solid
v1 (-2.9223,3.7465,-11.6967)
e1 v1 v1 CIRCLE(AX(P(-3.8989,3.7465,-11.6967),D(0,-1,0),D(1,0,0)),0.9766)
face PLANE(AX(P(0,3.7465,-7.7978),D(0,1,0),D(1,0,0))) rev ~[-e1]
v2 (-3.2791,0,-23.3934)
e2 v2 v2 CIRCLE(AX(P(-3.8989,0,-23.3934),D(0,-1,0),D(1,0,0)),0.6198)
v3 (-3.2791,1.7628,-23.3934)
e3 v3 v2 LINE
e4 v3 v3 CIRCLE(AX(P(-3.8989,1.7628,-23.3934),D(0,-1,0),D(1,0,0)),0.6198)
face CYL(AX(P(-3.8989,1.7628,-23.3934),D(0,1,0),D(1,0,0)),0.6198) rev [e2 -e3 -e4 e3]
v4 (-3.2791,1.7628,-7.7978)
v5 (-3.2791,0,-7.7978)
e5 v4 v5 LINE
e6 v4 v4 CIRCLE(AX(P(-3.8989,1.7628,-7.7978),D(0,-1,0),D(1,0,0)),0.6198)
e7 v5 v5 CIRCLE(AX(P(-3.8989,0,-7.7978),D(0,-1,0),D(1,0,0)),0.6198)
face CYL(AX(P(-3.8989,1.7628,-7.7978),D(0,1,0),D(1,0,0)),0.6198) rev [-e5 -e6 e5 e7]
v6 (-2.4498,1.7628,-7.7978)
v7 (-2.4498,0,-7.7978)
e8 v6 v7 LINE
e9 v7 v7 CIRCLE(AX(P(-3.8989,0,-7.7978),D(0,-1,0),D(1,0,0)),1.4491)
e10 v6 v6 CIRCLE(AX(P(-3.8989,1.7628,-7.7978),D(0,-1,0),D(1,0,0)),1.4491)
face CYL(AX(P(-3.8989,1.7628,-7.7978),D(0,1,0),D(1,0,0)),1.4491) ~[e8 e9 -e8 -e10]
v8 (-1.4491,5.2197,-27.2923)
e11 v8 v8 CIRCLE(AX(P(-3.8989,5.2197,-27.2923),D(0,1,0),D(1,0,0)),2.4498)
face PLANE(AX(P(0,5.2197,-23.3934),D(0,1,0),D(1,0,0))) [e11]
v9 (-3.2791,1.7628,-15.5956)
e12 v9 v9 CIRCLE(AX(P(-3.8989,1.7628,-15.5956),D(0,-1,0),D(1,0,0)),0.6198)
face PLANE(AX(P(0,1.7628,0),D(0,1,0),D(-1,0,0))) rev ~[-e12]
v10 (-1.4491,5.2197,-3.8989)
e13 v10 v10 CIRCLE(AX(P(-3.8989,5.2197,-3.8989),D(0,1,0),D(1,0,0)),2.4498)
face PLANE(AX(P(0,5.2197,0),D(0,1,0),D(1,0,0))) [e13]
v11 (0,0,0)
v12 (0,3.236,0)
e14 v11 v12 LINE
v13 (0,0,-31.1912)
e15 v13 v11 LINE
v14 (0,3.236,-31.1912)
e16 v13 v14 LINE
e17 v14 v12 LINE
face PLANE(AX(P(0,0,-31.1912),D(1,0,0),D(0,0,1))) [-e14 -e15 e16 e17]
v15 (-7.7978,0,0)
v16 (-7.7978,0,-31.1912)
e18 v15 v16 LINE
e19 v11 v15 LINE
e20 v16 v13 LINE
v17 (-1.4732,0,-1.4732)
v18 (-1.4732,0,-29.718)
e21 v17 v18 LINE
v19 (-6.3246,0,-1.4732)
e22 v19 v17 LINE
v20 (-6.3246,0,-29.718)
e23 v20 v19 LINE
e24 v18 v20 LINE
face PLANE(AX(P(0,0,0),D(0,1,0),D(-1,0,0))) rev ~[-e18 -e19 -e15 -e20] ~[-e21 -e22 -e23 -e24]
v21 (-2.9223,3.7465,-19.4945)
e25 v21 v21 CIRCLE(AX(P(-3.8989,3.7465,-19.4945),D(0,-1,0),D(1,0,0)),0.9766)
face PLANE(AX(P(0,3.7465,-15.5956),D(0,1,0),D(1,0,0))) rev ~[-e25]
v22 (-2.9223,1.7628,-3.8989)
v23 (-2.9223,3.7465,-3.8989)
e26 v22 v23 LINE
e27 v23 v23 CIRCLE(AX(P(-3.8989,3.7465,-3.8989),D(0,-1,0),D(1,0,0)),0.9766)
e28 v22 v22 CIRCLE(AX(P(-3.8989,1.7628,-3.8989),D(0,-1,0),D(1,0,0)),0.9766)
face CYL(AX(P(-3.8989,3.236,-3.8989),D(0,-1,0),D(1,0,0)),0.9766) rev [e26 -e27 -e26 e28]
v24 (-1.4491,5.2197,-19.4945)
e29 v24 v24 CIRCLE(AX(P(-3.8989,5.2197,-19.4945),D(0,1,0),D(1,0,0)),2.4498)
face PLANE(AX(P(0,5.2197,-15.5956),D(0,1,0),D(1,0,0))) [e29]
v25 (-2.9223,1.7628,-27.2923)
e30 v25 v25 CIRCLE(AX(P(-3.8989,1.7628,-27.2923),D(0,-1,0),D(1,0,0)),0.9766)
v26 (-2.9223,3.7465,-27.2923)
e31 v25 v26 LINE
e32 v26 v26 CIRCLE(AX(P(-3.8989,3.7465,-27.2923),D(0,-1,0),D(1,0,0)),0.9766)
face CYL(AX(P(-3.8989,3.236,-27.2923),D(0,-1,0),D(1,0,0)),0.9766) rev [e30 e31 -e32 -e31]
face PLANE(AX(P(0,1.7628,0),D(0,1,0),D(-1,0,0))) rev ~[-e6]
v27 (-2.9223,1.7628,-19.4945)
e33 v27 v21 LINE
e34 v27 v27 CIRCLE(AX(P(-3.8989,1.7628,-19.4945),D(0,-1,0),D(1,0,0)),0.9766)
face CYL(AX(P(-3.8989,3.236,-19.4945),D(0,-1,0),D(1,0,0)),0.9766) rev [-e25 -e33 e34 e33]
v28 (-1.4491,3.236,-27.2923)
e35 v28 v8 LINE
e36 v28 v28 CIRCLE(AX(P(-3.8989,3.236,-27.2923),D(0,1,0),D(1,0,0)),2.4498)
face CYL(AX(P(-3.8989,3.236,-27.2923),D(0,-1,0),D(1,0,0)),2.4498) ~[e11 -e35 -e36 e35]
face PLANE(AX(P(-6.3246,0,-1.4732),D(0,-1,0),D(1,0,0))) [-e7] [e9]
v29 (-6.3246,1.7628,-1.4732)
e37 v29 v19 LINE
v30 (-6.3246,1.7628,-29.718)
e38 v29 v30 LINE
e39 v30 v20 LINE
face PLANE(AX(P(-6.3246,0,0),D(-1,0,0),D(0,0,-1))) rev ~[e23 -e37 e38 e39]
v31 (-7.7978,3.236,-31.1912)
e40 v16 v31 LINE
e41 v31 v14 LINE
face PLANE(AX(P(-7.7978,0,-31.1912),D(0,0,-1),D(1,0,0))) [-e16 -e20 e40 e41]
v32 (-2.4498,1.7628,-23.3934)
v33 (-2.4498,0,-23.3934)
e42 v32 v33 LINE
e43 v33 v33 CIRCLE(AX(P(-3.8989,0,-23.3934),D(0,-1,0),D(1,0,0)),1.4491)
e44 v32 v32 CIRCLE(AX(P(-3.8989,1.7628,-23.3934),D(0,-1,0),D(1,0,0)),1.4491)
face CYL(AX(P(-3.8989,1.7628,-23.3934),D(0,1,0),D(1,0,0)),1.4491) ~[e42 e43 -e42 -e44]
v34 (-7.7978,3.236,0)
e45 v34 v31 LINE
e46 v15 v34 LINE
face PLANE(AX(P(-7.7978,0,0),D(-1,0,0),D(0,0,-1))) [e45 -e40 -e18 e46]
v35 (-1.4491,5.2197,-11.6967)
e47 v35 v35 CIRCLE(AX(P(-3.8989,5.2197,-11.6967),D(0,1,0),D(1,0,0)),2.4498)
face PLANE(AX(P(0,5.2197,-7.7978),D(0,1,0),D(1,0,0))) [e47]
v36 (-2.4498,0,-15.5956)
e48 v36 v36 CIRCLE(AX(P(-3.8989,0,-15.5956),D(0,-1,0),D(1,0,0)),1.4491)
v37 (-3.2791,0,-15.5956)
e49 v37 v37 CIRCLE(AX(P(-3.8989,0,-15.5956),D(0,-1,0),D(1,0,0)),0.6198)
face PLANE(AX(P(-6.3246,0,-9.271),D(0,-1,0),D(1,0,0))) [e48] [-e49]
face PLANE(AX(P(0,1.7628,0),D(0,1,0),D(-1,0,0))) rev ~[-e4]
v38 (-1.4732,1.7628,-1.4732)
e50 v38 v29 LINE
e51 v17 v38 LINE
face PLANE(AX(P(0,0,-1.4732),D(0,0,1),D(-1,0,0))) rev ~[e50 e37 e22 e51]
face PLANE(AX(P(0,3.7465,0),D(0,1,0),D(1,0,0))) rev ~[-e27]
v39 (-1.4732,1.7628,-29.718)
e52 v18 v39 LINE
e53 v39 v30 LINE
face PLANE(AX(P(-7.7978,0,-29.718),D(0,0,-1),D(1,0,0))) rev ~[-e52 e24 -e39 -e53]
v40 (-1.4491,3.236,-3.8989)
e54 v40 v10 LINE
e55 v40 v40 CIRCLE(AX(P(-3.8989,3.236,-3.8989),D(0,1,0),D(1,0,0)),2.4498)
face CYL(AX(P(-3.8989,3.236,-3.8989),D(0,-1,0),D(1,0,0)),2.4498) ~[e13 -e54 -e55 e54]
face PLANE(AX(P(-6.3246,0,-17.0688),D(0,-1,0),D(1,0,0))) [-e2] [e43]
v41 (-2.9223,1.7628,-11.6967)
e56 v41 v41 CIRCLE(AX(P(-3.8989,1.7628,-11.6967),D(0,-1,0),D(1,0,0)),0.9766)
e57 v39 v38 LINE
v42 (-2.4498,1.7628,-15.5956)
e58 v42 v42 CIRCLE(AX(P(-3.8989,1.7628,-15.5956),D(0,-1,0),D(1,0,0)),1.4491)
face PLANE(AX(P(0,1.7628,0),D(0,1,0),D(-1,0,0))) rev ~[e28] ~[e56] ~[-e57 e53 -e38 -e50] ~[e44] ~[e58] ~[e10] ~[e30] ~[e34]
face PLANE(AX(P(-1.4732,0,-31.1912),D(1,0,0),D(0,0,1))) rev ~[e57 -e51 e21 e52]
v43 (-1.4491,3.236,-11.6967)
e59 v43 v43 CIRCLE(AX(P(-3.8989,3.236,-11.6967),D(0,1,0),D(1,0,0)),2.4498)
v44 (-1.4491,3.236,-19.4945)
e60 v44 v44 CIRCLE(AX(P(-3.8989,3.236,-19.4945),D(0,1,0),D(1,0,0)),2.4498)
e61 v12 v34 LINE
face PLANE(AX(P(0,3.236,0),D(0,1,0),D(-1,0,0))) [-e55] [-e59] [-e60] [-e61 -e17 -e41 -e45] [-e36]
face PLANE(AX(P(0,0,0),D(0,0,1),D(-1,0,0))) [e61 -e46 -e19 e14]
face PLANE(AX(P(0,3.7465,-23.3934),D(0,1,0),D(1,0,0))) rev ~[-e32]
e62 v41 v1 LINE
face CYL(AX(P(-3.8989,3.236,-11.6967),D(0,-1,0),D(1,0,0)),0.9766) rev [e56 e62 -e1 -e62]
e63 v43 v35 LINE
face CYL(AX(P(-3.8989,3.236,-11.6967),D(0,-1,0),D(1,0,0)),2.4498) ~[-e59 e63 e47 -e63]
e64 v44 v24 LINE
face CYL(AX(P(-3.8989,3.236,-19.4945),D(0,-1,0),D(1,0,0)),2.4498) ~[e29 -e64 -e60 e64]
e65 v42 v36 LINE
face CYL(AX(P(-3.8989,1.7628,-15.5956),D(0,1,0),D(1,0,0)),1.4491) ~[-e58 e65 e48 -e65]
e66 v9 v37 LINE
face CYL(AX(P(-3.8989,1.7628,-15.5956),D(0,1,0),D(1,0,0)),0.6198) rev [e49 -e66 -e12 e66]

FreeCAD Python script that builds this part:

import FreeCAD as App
import Part
import Sketcher
Q = App.Units.Quantity


def faces_at(feature, points):
    """Names of the faces that lie closest to the given points."""
    faces = feature.Shape.Faces
    near = lambda p: min(range(len(faces)), key=lambda i: faces[i].distToShape(Part.Vertex(*p))[0])
    return sorted({f"Face{near(p) + 1}" for p in points})

doc = App.newDocument("Part")
body = doc.addObject("PartDesign::Body", "Body")

# Sketch on XZ plane
sketch1 = body.newObject("Sketcher::SketchObject", "Sketch")
sketch1.AttachmentSupport = (doc.getObject("XZ_Plane"), [""])
sketch1.MapMode = "FlatFace"
sketch1.addGeometry([
    Part.LineSegment(App.Vector(-7.7978, 0, 0), App.Vector(0, 0, 0)),
    Part.LineSegment(App.Vector(0, 0, 0), App.Vector(0, -31.1912, 0)),
    Part.LineSegment(App.Vector(0, -31.1912, 0), App.Vector(-7.7978, -31.1912, 0)),
    Part.LineSegment(App.Vector(-7.7978, -31.1912, 0), App.Vector(-7.7978, 0, 0)),
], False)
sketch1.addConstraint([
    Sketcher.Constraint("Coincident", 0, 2, 1, 1),
    Sketcher.Constraint("Coincident", 1, 2, 2, 1),
    Sketcher.Constraint("Coincident", 2, 2, 3, 1),
    Sketcher.Constraint("Coincident", 3, 2, 0, 1),
    Sketcher.Constraint("Horizontal", 0),
    Sketcher.Constraint("Vertical", 1),
    Sketcher.Constraint("Horizontal", 2),
    Sketcher.Constraint("Vertical", 3),
    Sketcher.Constraint("Coincident", 0, 2, -1, 1),
    Sketcher.Constraint("DistanceX", 0, 1, 0, 2, Q("0.307 in")),
    Sketcher.Constraint("DistanceY", 1, 2, 1, 1, Q("1.228 in")),
])
pad1 = body.newObject("PartDesign::Pad", "Pad")
pad1.Profile = sketch1
pad1.Length = Q("0.1274016 in")
pad1.Reversed = True

# Sketch on XZ plane
sketch2 = body.newObject("Sketcher::SketchObject", "Sketch001")
sketch2.AttachmentSupport = (doc.getObject("XZ_Plane"), [""])
sketch2.MapMode = "FlatFace"
sketch2.AttachmentOffset = App.Placement(App.Vector(0, 0, -0.1274016 * 25.4), App.Rotation())
sketch2.addGeometry(Part.Circle(App.Vector(-3.8989, -3.8989, 0), App.Vector(0, 0, 1), 2.4498), False)
sketch2.addConstraint([
    Sketcher.Constraint("Diameter", 0, Q("0.1929 in")),
    Sketcher.Constraint("DistanceX", 0, 3, -1, 1, Q("0.1535 in")),
    Sketcher.Constraint("DistanceY", 0, 3, -1, 1, Q("0.1535 in")),
])
pad2 = body.newObject("PartDesign::Pad", "Pad001")
pad2.Profile = sketch2
pad2.Length = Q("0.0780984 in")
pad2.Reversed = True
doc.recompute()

linearpattern = body.newObject("PartDesign::LinearPattern", "LinearPattern")
linearpattern.Originals = [pad2]
linearpattern.Direction = (doc.getObject("Z_Axis"), [""])
linearpattern.Mode = "offset"
linearpattern.Offset = Q("0.307 in")
linearpattern.Occurrences = 4
linearpattern.Reversed = True
body.Tip = linearpattern
doc.recompute()

thickness = body.newObject("PartDesign::Thickness", "Thickness")
thickness.Base = (linearpattern, faces_at(linearpattern, [(-2.599, 0, -10.397)]))
thickness.Value = Q("0.058 in")
thickness.Reversed = True
thickness.Join = "Intersection"

# Sketch on XZ plane
sketch3 = body.newObject("Sketcher::SketchObject", "Sketch002")
sketch3.AttachmentSupport = (doc.getObject("XZ_Plane"), [""])
sketch3.MapMode = "FlatFace"
sketch3.AttachmentOffset = App.Placement(App.Vector(0, 0, -0.0694016 * 25.4), App.Rotation())
sketch3.addGeometry([
    Part.Circle(App.Vector(-3.8989, -7.7978, 0), App.Vector(0, 0, 1), 1.4491),
    Part.Circle(App.Vector(-3.8989, -7.7978, 0), App.Vector(0, 0, 1), 0.6198),
], False)
sketch3.addConstraint([
    Sketcher.Constraint("Coincident", 1, 3, 0, 3),
    Sketcher.Constraint("Diameter", 1, Q("0.0488 in")),
    Sketcher.Constraint("Diameter", 0, Q("0.1141 in")),
    Sketcher.Constraint("DistanceY", 0, 3, -1, 1, Q("0.307 in")),
    Sketcher.Constraint("DistanceX", 0, 3, -1, 1, Q("0.1535 in")),
])
pad3 = body.newObject("PartDesign::Pad", "Pad002")
pad3.Profile = sketch3
pad3.Length = Q("0.0694016 in")
doc.recompute()

linearpattern2 = body.newObject("PartDesign::LinearPattern", "LinearPattern001")
linearpattern2.Originals = [pad3]
linearpattern2.Direction = (doc.getObject("Z_Axis"), [""])
linearpattern2.Mode = "offset"
linearpattern2.Offset = Q("0.307 in")
linearpattern2.Occurrences = 3
linearpattern2.Reversed = True
body.Tip = linearpattern2

doc.recompute()
